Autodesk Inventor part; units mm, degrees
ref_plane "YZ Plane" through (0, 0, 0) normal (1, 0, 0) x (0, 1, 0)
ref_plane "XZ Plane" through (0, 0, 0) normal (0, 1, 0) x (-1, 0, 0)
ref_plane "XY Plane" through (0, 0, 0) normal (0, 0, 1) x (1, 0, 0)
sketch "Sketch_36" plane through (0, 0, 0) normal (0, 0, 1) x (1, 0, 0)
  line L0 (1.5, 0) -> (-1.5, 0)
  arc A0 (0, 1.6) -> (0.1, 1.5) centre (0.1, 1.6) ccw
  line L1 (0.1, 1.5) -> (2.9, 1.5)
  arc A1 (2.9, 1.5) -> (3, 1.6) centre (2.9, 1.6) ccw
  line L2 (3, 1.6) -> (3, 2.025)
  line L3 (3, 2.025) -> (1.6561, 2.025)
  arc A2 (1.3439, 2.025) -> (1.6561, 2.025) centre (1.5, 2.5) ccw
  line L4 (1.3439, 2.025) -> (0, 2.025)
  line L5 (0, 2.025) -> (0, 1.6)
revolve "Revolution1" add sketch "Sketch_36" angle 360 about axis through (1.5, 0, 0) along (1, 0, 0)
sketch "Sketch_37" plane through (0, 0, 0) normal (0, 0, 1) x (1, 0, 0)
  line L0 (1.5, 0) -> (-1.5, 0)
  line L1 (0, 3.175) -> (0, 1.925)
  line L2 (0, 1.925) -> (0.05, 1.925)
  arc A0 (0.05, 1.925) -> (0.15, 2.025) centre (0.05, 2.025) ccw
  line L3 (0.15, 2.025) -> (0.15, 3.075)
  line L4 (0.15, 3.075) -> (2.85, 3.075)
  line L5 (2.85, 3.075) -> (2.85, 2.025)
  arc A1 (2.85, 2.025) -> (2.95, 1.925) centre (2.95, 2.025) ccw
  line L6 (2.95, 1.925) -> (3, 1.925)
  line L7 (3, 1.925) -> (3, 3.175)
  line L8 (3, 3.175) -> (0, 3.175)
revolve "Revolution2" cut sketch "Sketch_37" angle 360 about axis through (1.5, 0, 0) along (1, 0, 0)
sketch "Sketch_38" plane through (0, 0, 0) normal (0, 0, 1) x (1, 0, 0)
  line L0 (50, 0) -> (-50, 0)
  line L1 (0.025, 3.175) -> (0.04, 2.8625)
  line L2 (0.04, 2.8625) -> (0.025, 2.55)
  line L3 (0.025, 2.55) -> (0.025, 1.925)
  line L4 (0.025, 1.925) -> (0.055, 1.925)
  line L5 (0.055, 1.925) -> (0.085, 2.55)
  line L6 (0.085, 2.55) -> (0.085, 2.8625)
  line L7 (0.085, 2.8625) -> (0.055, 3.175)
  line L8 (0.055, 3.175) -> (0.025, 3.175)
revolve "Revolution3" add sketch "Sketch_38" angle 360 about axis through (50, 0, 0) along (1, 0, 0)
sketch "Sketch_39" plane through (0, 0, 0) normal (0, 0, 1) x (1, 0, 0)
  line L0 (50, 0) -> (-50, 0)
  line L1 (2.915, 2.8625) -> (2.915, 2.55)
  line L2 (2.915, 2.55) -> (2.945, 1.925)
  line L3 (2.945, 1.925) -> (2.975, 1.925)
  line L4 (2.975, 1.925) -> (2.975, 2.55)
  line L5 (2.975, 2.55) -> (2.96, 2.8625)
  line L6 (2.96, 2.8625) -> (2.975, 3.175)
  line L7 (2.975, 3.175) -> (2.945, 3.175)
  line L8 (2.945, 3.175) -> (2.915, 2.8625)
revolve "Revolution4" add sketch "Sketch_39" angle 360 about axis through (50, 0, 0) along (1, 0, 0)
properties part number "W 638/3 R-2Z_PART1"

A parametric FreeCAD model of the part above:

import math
import FreeCAD as App
import Part
import Sketcher

doc = App.newDocument("Part")
body = doc.addObject("PartDesign::Body", "Body")

# Sketch on XY plane
sketch1 = body.newObject("Sketcher::SketchObject", "Sketch")
sketch1.AttachmentSupport = (doc.getObject("XY_Plane"), [""])
sketch1.MapMode = "FlatFace"
sketch1.addGeometry([
    Part.LineSegment(App.Vector(0, 2.02, 0), App.Vector(0, 1.6, 0)),  # 0
    Part.ArcOfCircle(Part.Circle(App.Vector(0.1, 1.6, 0), App.Vector(0, 0, 1), 0.1), math.radians(180), math.radians(270)),  # 1
    Part.LineSegment(App.Vector(0.1, 1.5, 0), App.Vector(2.9, 1.5, 0)),  # 2
    Part.ArcOfCircle(Part.Circle(App.Vector(2.9, 1.6, 0), App.Vector(0, 0, 1), 0.1), math.radians(-90), math.radians(0)),  # 3
    Part.LineSegment(App.Vector(3, 1.6, 0), App.Vector(3, 2.02, 0)),  # 4
    Part.LineSegment(App.Vector(3, 2.02, 0), App.Vector(1.66, 2.02, 0)),  # 5
    Part.ArcOfCircle(Part.Circle(App.Vector(1.5, 2.5, 0), App.Vector(0, 0, 1), 0.5), math.radians(-108), math.radians(-72)),  # 6
    Part.LineSegment(App.Vector(1.34, 2.02, 0), App.Vector(0, 2.02, 0)),  # 7
], False)
sketch1.addConstraint([
    Sketcher.Constraint("Tangent", 0, 2, 1, 1),
    Sketcher.Constraint("Tangent", 1, 2, 2, 1),
    Sketcher.Constraint("Tangent", 2, 2, 3, 1),
    Sketcher.Constraint("Tangent", 3, 2, 4, 1),
    Sketcher.Constraint("Coincident", 4, 2, 5, 1),
    Sketcher.Constraint("Coincident", 5, 2, 6, 2),
    Sketcher.Constraint("Coincident", 6, 1, 7, 1),
    Sketcher.Constraint("Coincident", 7, 2, 0, 1),
    Sketcher.Constraint("Vertical", 0),
    Sketcher.Constraint("Horizontal", 2),
    Sketcher.Constraint("Vertical", 4),
    Sketcher.Constraint("Horizontal", 5),
    Sketcher.Constraint("Horizontal", 7),
    Sketcher.Constraint("Equal", 1, 3),
    Sketcher.Constraint("PointOnObject", 0, 2, -2),
    Sketcher.Constraint("Horizontal", 5, 2, 6, 1),
    Sketcher.Constraint("Equal", 5, 7),
    Sketcher.Constraint("Radius", 1, 0.1),
    Sketcher.Constraint("Radius", 6, 0.5),
    Sketcher.Constraint("DistanceX", 2, 1, 2, 2, 2.8),
    Sketcher.Constraint("DistanceY", 1, 2, 6, 3, 1.0),
    Sketcher.Constraint("DistanceY", -1, 1, 1, 3, 1.6),
    Sketcher.Constraint("DistanceX", 5, 2, 5, 1, 1.344),
])
revolution = body.newObject("PartDesign::Revolution", "Revolution")
revolution.Profile = sketch1
revolution.ReferenceAxis = (sketch1, ["H_Axis"])
revolution.Angle = 360

# Sketch on XY plane
sketch2 = body.newObject("Sketcher::SketchObject", "Sketch001")
sketch2.AttachmentSupport = (doc.getObject("XY_Plane"), [""])
sketch2.MapMode = "FlatFace"
sketch2.addGeometry([
    Part.LineSegment(App.Vector(3, 3.175, 0), App.Vector(0, 3.175, 0)),  # 0
    Part.LineSegment(App.Vector(0, 3.175, 0), App.Vector(0, 1.925, 0)),  # 1
    Part.LineSegment(App.Vector(0, 1.925, 0), App.Vector(0.05, 1.925, 0)),  # 2
    Part.ArcOfCircle(Part.Circle(App.Vector(0.05, 2.025, 0), App.Vector(0, 0, 1), 0.1), math.radians(-90), math.radians(0)),  # 3
    Part.LineSegment(App.Vector(0.15, 2.025, 0), App.Vector(0.15, 3.075, 0)),  # 4
    Part.LineSegment(App.Vector(0.15, 3.075, 0), App.Vector(2.85, 3.075, 0)),  # 5
    Part.LineSegment(App.Vector(2.85, 3.075, 0), App.Vector(2.85, 2.025, 0)),  # 6
    Part.ArcOfCircle(Part.Circle(App.Vector(2.95, 2.025, 0), App.Vector(0, 0, 1), 0.1), math.radians(180), math.radians(270)),  # 7
    Part.LineSegment(App.Vector(2.95, 1.925, 0), App.Vector(3, 1.925, 0)),  # 8
    Part.LineSegment(App.Vector(3, 1.925, 0), App.Vector(3, 3.175, 0)),  # 9
], False)
sketch2.addConstraint([
    Sketcher.Constraint("Coincident", 0, 2, 1, 1),
    Sketcher.Constraint("Coincident", 1, 2, 2, 1),
    Sketcher.Constraint("Tangent", 2, 2, 3, 1),
    Sketcher.Constraint("Tangent", 3, 2, 4, 1),
    Sketcher.Constraint("Coincident", 4, 2, 5, 1),
    Sketcher.Constraint("Coincident", 5, 2, 6, 1),
    Sketcher.Constraint("Tangent", 6, 2, 7, 1),
    Sketcher.Constraint("Tangent", 7, 2, 8, 1),
    Sketcher.Constraint("Coincident", 8, 2, 9, 1),
    Sketcher.Constraint("Coincident", 9, 2, 0, 1),
    Sketcher.Constraint("Horizontal", 0),
    Sketcher.Constraint("Vertical", 1),
    Sketcher.Constraint("Horizontal", 2),
    Sketcher.Constraint("Vertical", 4),
    Sketcher.Constraint("Horizontal", 5),
    Sketcher.Constraint("Vertical", 6),
    Sketcher.Constraint("Horizontal", 8),
    Sketcher.Constraint("Vertical", 9),
    Sketcher.Constraint("Equal", 3, 7),
    Sketcher.Constraint("PointOnObject", 0, 2, -2),
    Sketcher.Constraint("Horizontal", 3, 3, 7, 3),
    Sketcher.Constraint("Equal", 2, 8),
    Sketcher.Constraint("Radius", 3, 0.1),
    Sketcher.Constraint("DistanceX", 0, 2, 0, 1, 3.0),
    Sketcher.Constraint("DistanceX", 5, 1, 5, 2, 2.7),
    Sketcher.Constraint("DistanceY", 1, 2, 1, 1, 1.25),
    Sketcher.Constraint("DistanceY", 4, 1, 4, 2, 1.05),
    Sketcher.Constraint("DistanceY", -1, 1, 3, 3, 2.025),
])
groove = body.newObject("PartDesign::Groove", "Groove")
groove.Profile = sketch2
groove.ReferenceAxis = (sketch2, ["H_Axis"])
groove.Angle = 360

# Sketch on XY plane
sketch3 = body.newObject("Sketcher::SketchObject", "Sketch002")
sketch3.AttachmentSupport = (doc.getObject("XY_Plane"), [""])
sketch3.MapMode = "FlatFace"
sketch3.addGeometry([
    Part.LineSegment(App.Vector(0.055, 3.175, 0), App.Vector(0.025, 3.175, 0)),  # 0
    Part.LineSegment(App.Vector(0.025, 3.175, 0), App.Vector(0.04, 2.862, 0)),  # 1
    Part.LineSegment(App.Vector(0.04, 2.862, 0), App.Vector(0.025, 2.55, 0)),  # 2
    Part.LineSegment(App.Vector(0.025, 2.55, 0), App.Vector(0.025, 1.925, 0)),  # 3
    Part.LineSegment(App.Vector(0.025, 1.925, 0), App.Vector(0.055, 1.925, 0)),  # 4
    Part.LineSegment(App.Vector(0.055, 1.925, 0), App.Vector(0.085, 2.55, 0)),  # 5
    Part.LineSegment(App.Vector(0.085, 2.55, 0), App.Vector(0.085, 2.862, 0)),  # 6
    Part.LineSegment(App.Vector(0.085, 2.862, 0), App.Vector(0.055, 3.175, 0)),  # 7
], False)
sketch3.addConstraint([
    Sketcher.Constraint("Coincident", 0, 2, 1, 1),
    Sketcher.Constraint("Coincident", 1, 2, 2, 1),
    Sketcher.Constraint("Coincident", 2, 2, 3, 1),
    Sketcher.Constraint("Coincident", 3, 2, 4, 1),
    Sketcher.Constraint("Coincident", 4, 2, 5, 1),
    Sketcher.Constraint("Coincident", 5, 2, 6, 1),
    Sketcher.Constraint("Coincident", 6, 2, 7, 1),
    Sketcher.Constraint("Coincident", 7, 2, 0, 1),
    Sketcher.Constraint("Horizontal", 0),
    Sketcher.Constraint("Vertical", 3),
    Sketcher.Constraint("Horizontal", 4),
    Sketcher.Constraint("Vertical", 6),
    Sketcher.Constraint("Parallel", 2, 5),
    Sketcher.Constraint("Horizontal", 2, 2, 5, 2),
    Sketcher.Constraint("Horizontal", 1, 2, 6, 2),
    Sketcher.Constraint("Vertical", 0, 2, 2, 2),
    Sketcher.Constraint("Vertical", 4, 2, 7, 2),
    Sketcher.Constraint("Equal", 1, 2),
    Sketcher.Constraint("DistanceX", 0, 2, 0, 1, 0.03),
    Sketcher.Constraint("DistanceY", 3, 2, 3, 1, 0.625),
    Sketcher.Constraint("DistanceX", -1, 1, 1, 2, 0.04),
    Sketcher.Constraint("DistanceY", -1, 1, 2, 2, 2.55),
    Sketcher.Constraint("DistanceY", 3, 2, 0, 2, 1.25),
    Sketcher.Constraint("DistanceX", 2, 2, 5, 2, 0.06),
])
revolution2 = body.newObject("PartDesign::Revolution", "Revolution001")
revolution2.Profile = sketch3
revolution2.ReferenceAxis = (sketch3, ["H_Axis"])
revolution2.Angle = 360

# Sketch on XY plane
sketch4 = body.newObject("Sketcher::SketchObject", "Sketch003")
sketch4.AttachmentSupport = (doc.getObject("XY_Plane"), [""])
sketch4.MapMode = "FlatFace"
sketch4.addGeometry([
    Part.LineSegment(App.Vector(2.945, 3.175, 0), App.Vector(2.915, 2.862, 0)),  # 0
    Part.LineSegment(App.Vector(2.915, 2.862, 0), App.Vector(2.915, 2.55, 0)),  # 1
    Part.LineSegment(App.Vector(2.915, 2.55, 0), App.Vector(2.945, 1.925, 0)),  # 2
    Part.LineSegment(App.Vector(2.945, 1.925, 0), App.Vector(2.975, 1.925, 0)),  # 3
    Part.LineSegment(App.Vector(2.975, 1.925, 0), App.Vector(2.975, 2.55, 0)),  # 4
    Part.LineSegment(App.Vector(2.975, 2.55, 0), App.Vector(2.96, 2.862, 0)),  # 5
    Part.LineSegment(App.Vector(2.96, 2.862, 0), App.Vector(2.975, 3.175, 0)),  # 6
    Part.LineSegment(App.Vector(2.975, 3.175, 0), App.Vector(2.945, 3.175, 0)),  # 7
], False)
sketch4.addConstraint([
    Sketcher.Constraint("Coincident", 0, 2, 1, 1),
    Sketcher.Constraint("Coincident", 1, 2, 2, 1),
    Sketcher.Constraint("Coincident", 2, 2, 3, 1),
    Sketcher.Constraint("Coincident", 3, 2, 4, 1),
    Sketcher.Constraint("Coincident", 4, 2, 5, 1),
    Sketcher.Constraint("Coincident", 5, 2, 6, 1),
    Sketcher.Constraint("Coincident", 6, 2, 7, 1),
    Sketcher.Constraint("Coincident", 7, 2, 0, 1),
    Sketcher.Constraint("Vertical", 1),
    Sketcher.Constraint("Horizontal", 3),
    Sketcher.Constraint("Vertical", 4),
    Sketcher.Constraint("Horizontal", 7),
    Sketcher.Constraint("Parallel", 2, 5),
    Sketcher.Constraint("Horizontal", 1, 2, 4, 2),
    Sketcher.Constraint("Horizontal", 0, 2, 5, 2),
    Sketcher.Constraint("Vertical", 4, 2, 6, 2),
    Sketcher.Constraint("Vertical", 2, 2, 7, 2),
    Sketcher.Constraint("Equal", 5, 6),
    Sketcher.Constraint("DistanceX", 3, 1, 3, 2, 0.03),
    Sketcher.Constraint("DistanceY", 4, 1, 4, 2, 0.625),
    Sketcher.Constraint("DistanceY", -1, 1, 1, 2, 2.55),
    Sketcher.Constraint("DistanceX", -1, 1, 5, 2, 2.96),
    Sketcher.Constraint("DistanceX", 1, 2, 2, 2, 0.03),
    Sketcher.Constraint("DistanceY", 3, 2, 6, 2, 1.25),
])
revolution3 = body.newObject("PartDesign::Revolution", "Revolution002")
revolution3.Profile = sketch4
revolution3.ReferenceAxis = (sketch4, ["H_Axis"])
revolution3.Angle = 360

doc.recompute()
